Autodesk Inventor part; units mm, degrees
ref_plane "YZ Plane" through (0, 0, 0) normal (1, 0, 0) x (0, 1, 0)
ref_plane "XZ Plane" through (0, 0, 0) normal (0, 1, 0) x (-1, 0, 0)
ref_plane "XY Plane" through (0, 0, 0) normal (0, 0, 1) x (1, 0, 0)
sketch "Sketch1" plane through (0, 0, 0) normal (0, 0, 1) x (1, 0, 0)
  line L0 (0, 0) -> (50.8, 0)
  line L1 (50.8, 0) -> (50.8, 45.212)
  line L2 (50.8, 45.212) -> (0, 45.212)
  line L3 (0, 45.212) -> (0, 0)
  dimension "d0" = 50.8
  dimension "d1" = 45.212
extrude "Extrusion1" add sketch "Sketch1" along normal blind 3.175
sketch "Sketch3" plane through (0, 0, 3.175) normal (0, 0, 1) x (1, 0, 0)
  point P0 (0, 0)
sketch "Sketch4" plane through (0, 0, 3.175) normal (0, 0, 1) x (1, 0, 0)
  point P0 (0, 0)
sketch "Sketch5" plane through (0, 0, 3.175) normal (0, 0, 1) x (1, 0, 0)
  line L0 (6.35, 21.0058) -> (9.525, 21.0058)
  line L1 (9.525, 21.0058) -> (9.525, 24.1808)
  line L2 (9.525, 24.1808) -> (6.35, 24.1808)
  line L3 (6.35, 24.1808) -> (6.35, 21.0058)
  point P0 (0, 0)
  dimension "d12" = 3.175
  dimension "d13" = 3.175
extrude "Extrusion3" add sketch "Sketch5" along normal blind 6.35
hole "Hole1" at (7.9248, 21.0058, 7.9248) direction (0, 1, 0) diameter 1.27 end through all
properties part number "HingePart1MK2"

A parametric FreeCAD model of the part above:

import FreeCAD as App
import Part
import Sketcher
from FreeCAD import Vector
Q = App.Units.Quantity


def add_polygon(sketch, points):
    """Adds a closed chain of lines whose ends are joined by coincident constraints."""
    first, n = sketch.GeometryCount, len(points)
    for a, b in zip(points, points[1:] + points[:1]):
        sketch.addGeometry(Part.LineSegment(App.Vector(*a, 0), App.Vector(*b, 0)), False)
    for i in range(n):
        sketch.addConstraint(Sketcher.Constraint("Coincident", first + i, 2, first + (i + 1) % n, 1))

doc = App.newDocument("Part")
params = doc.addObject("Spreadsheet::Sheet", "Params")
for row, (alias, value) in enumerate([
    ("sketch1_width", "2 in"),
    ("sketch1_height", "1.78 in"),
    ("pad1_length", "0.125 in"),
    ("sketch2_width", "0.125 in"),
    ("pad2_length", "0.25 in"),
    ("sketch3_diameter", "0.05 in"),
    ("hole_diameter", "0.05 in"),
], start=1):
    params.set(f"A{row}", alias)
    params.set(f"B{row}", "=" + value)
    params.setAlias(f"B{row}", alias)

body = doc.addObject("PartDesign::Body", "Body")

# Sketch on XY plane
sketch1 = doc.addObject("Sketcher::SketchObject", "Sketch")
body.addObject(sketch1)
sketch1.AttachmentSupport = (doc.XY_Plane, [""])
sketch1.MapMode = "FlatFace"
add_polygon(sketch1, [(0, 45), (0, 0), (51, 0), (51, 45)])  # lines 0-3
sketch1.addConstraint([
    Sketcher.Constraint("Vertical", 0),
    Sketcher.Constraint("Horizontal", 1),
    Sketcher.Constraint("Vertical", 2),
    Sketcher.Constraint("Horizontal", 3),
    Sketcher.Constraint("Coincident", 0, 2, -1, 1),
    Sketcher.Constraint("DistanceX", 1, 1, 1, 2, Q("2 in")),
    Sketcher.Constraint("DistanceY", 0, 2, 0, 1, Q("1.78 in")),
])
sketch1.setExpression("Constraints[9]", "Params.sketch1_width")
sketch1.setExpression("Constraints[10]", "Params.sketch1_height")
pad1 = doc.addObject("PartDesign::Pad", "Pad")
body.addObject(pad1)
pad1.Profile = sketch1
pad1.setExpression("Length", "Params.pad1_length")

# Sketch on XY plane
sketch2 = doc.addObject("Sketcher::SketchObject", "Sketch001")
body.addObject(sketch2)
sketch2.AttachmentSupport = (doc.XY_Plane, [""])
sketch2.MapMode = "FlatFace"
sketch2.AttachmentOffset = App.Placement(Vector(0, 0, 0.125 * 25.4), App.Rotation())
add_polygon(sketch2, [(6.3, 24.2), (6.3, 21), (9.5, 21), (9.5, 24.2)])  # lines 0-3
sketch2.addConstraint([
    Sketcher.Constraint("Vertical", 0),
    Sketcher.Constraint("Horizontal", 1),
    Sketcher.Constraint("Vertical", 2),
    Sketcher.Constraint("Horizontal", 3),
    Sketcher.Constraint("Equal", 3, 0),
    Sketcher.Constraint("DistanceX", 1, 1, 1, 2, Q("0.125 in")),
    Sketcher.Constraint("DistanceX", -1, 1, 0, 2, Q("0.25 in")),
    Sketcher.Constraint("DistanceY", -1, 1, 0, 2, Q("0.827 in")),
])
sketch2.setExpression("Constraints[9]", "Params.sketch2_width")
pad2 = doc.addObject("PartDesign::Pad", "Pad001")
body.addObject(pad2)
pad2.Profile = sketch2
pad2.setExpression("Length", "Params.pad2_length")

# Sketch on XZ plane
sketch3 = doc.addObject("Sketcher::SketchObject", "Sketch002")
body.addObject(sketch3)
sketch3.AttachmentSupport = (doc.XZ_Plane, [""])
sketch3.MapMode = "FlatFace"
sketch3.AttachmentOffset = App.Placement(Vector(0, 0, -0.827 * 25.4), App.Rotation())
sketch3.addGeometry(Part.Circle(Vector(7.9, 7.9, 0), Vector(0, 0, 1), 0.6), False)
sketch3.addConstraint([
    Sketcher.Constraint("Diameter", 0, Q("0.05 in")),
    Sketcher.Constraint("DistanceX", -1, 1, 0, 3, Q("0.312 in")),
    Sketcher.Constraint("DistanceY", -1, 1, 0, 3, Q("0.312 in")),
])
sketch3.setExpression("Constraints[0]", "Params.sketch3_diameter")
doc.recompute()
hole = doc.addObject("PartDesign::Hole", "Hole")
body.addObject(hole)
hole.Profile = sketch3
hole.ThreadType = "None"
hole.setExpression("Diameter", "Params.hole_diameter")
hole.DepthType = "ThroughAll"

doc.recompute()
